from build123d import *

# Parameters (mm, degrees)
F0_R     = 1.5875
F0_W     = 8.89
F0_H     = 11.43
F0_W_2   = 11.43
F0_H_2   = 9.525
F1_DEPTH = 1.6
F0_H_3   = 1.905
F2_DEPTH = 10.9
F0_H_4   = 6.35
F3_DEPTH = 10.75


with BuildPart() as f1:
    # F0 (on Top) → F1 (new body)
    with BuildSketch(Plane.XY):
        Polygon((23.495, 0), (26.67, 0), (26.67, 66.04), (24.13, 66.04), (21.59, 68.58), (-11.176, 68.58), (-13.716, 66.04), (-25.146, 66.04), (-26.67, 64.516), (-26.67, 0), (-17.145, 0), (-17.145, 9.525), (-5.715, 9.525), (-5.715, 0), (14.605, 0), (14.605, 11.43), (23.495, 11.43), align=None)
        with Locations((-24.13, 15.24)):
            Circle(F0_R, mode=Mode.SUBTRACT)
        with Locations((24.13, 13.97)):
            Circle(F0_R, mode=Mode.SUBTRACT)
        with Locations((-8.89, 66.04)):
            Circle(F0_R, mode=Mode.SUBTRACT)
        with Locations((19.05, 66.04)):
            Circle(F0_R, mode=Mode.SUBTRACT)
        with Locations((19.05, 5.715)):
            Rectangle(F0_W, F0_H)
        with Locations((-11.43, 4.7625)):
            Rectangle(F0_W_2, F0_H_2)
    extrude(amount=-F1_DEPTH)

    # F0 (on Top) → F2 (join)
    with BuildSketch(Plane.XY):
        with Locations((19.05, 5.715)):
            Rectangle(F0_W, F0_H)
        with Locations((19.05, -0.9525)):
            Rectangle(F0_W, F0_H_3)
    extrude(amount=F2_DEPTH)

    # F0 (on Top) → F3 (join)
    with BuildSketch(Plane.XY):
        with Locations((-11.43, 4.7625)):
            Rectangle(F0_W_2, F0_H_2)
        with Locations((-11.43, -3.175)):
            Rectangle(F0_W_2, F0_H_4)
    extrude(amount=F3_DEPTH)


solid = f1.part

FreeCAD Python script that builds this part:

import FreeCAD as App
import Part
import Sketcher
from FreeCAD import Vector
Q = App.Units.Quantity


def add_polygon(sketch, points):
    """Adds a closed chain of lines whose ends are joined by coincident constraints."""
    first, n = sketch.GeometryCount, len(points)
    for a, b in zip(points, points[1:] + points[:1]):
        sketch.addGeometry(Part.LineSegment(App.Vector(*a, 0), App.Vector(*b, 0)), False)
    for i in range(n):
        sketch.addConstraint(Sketcher.Constraint("Coincident", first + i, 2, first + (i + 1) % n, 1))

doc = App.newDocument("Part")
body = doc.addObject("PartDesign::Body", "Body")

# Sketch on XY plane
sketch1 = body.newObject("Sketcher::SketchObject", "Sketch")
sketch1.AttachmentSupport = (doc.getObject("XY_Plane"), [""])
sketch1.MapMode = "FlatFace"
add_polygon(sketch1, [(26.7, 0), (26.7, 66), (24.1, 66), (21.6, 68.6), (-11.2, 68.6), (-13.7, 66), (-25.1, 66), (-26.7, 64.5), (-26.7, 0)])  # lines 0-8
sketch1.addGeometry(Part.Circle(Vector(-24.1, 15.2, 0), Vector(0, 0, 1), 1.6), False)  # 9
sketch1.addGeometry(Part.Circle(Vector(24.1, 14, 0), Vector(0, 0, 1), 1.6), False)  # 10
sketch1.addGeometry(Part.Circle(Vector(-8.9, 66, 0), Vector(0, 0, 1), 1.6), False)  # 11
sketch1.addGeometry(Part.Circle(Vector(19.1, 66, 0), Vector(0, 0, 1), 1.6), False)  # 12
sketch1.addConstraint(Sketcher.Constraint("Vertical", 0))
sketch1.addConstraint(Sketcher.Constraint("Horizontal", 1))
sketch1.addConstraint(Sketcher.Constraint("Horizontal", 3))
sketch1.addConstraint(Sketcher.Constraint("Horizontal", 5))
sketch1.addConstraint(Sketcher.Constraint("Vertical", 7))
sketch1.addConstraint(Sketcher.Constraint("Horizontal", 8))
sketch1.addConstraint(Sketcher.Constraint("Equal", 9, 10))
sketch1.addConstraint(Sketcher.Constraint("Equal", 10, 11))
sketch1.addConstraint(Sketcher.Constraint("Equal", 11, 12))
sketch1.addConstraint(Sketcher.Constraint("Symmetric", 7, 2, 8, 2, -1, 1))
sketch1.addConstraint(Sketcher.Constraint("Perpendicular", 2, 4))
sketch1.addConstraint(Sketcher.Constraint("Parallel", 4, 6))
sketch1.addConstraint(Sketcher.Constraint("Horizontal", 11, 3, 12, 3))
sketch1.addConstraint(Sketcher.Constraint("Horizontal", 12, 3, 0, 2))
sketch1.addConstraint(Sketcher.Constraint("Horizontal", 1, 2, 4, 2))
sketch1.addConstraint(Sketcher.Constraint("Vertical", 10, 3, 1, 2))
sketch1.addConstraint(Sketcher.Constraint("Equal", 2, 4))
sketch1.addConstraint(Sketcher.Constraint("Diameter", 9, Q("0.125 in")))
sketch1.addConstraint(Sketcher.Constraint("DistanceX", 1, 2, 1, 1, Q("0.1 in")))
sketch1.addConstraint(Sketcher.Constraint("DistanceX", 8, 1, 8, 2, Q("2.1 in")))
sketch1.addConstraint(Sketcher.Constraint("DistanceY", 0, 1, 0, 2, Q("2.6 in")))
sketch1.addConstraint(Sketcher.Constraint("DistanceY", 9, 3, 11, 3, Q("2 in")))
sketch1.addConstraint(Sketcher.Constraint("DistanceX", 9, 3, 0, 2, Q("2 in")))
sketch1.addConstraint(Sketcher.Constraint("DistanceX", 3, 2, 3, 1, Q("1.29 in")))
sketch1.addConstraint(Sketcher.Constraint("DistanceX", 5, 2, 5, 1, Q("0.45 in")))
sketch1.addConstraint(Sketcher.Constraint("DistanceY", 7, 2, 7, 1, Q("2.54 in")))
sketch1.addConstraint(Sketcher.Constraint("DistanceX", 9, 3, 11, 3, Q("0.6 in")))
sketch1.addConstraint(Sketcher.Constraint("DistanceX", 11, 3, 12, 3, Q("1.1 in")))
sketch1.addConstraint(Sketcher.Constraint("DistanceY", -1, 1, 10, 3, Q("0.55 in")))
pad1 = body.newObject("PartDesign::Pad", "Pad")
pad1.Profile = sketch1
pad1.Length = 1.6
pad1.Reversed = True

# Sketch on XY plane
sketch2 = body.newObject("Sketcher::SketchObject", "Sketch001")
sketch2.AttachmentSupport = (doc.getObject("XY_Plane"), [""])
sketch2.MapMode = "FlatFace"
add_polygon(sketch2, [(15, 11), (15, -2), (23, -2), (23, 11)])  # lines 0-3
sketch2.addConstraint(Sketcher.Constraint("Vertical", 0))
sketch2.addConstraint(Sketcher.Constraint("Horizontal", 1))
sketch2.addConstraint(Sketcher.Constraint("Vertical", 2))
sketch2.addConstraint(Sketcher.Constraint("Horizontal", 3))
sketch2.addConstraint(Sketcher.Constraint("DistanceX", 1, 1, 1, 2, Q("0.35 in")))
sketch2.addConstraint(Sketcher.Constraint("DistanceY", 0, 2, 0, 1, Q("0.525 in")))
sketch2.addConstraint(Sketcher.Constraint("DistanceY", -1, 1, 2, 2, Q("0.45 in")))
sketch2.addConstraint(Sketcher.Constraint("DistanceX", -1, 1, 0, 2, Q("0.575 in")))
pad2 = body.newObject("PartDesign::Pad", "Pad001")
pad2.Profile = sketch2
pad2.Length = 10.9

# Sketch on XY plane
sketch3 = body.newObject("Sketcher::SketchObject", "Sketch002")
sketch3.AttachmentSupport = (doc.getObject("XY_Plane"), [""])
sketch3.MapMode = "FlatFace"
add_polygon(sketch3, [(-17, 10), (-17, -6), (-6, -6), (-6, 10)])  # lines 0-3
sketch3.addConstraint(Sketcher.Constraint("Vertical", 0))
sketch3.addConstraint(Sketcher.Constraint("Horizontal", 1))
sketch3.addConstraint(Sketcher.Constraint("Vertical", 2))
sketch3.addConstraint(Sketcher.Constraint("Horizontal", 3))
sketch3.addConstraint(Sketcher.Constraint("DistanceX", 1, 1, 1, 2, Q("0.45 in")))
sketch3.addConstraint(Sketcher.Constraint("DistanceY", 0, 2, 0, 1, Q("0.625 in")))
sketch3.addConstraint(Sketcher.Constraint("DistanceY", 0, 2, -1, 1, Q("0.25 in")))
sketch3.addConstraint(Sketcher.Constraint("DistanceX", 0, 2, -1, 1, Q("0.675 in")))
pad3 = body.newObject("PartDesign::Pad", "Pad002")
pad3.Profile = sketch3
pad3.Length = 10.75

doc.recompute()
